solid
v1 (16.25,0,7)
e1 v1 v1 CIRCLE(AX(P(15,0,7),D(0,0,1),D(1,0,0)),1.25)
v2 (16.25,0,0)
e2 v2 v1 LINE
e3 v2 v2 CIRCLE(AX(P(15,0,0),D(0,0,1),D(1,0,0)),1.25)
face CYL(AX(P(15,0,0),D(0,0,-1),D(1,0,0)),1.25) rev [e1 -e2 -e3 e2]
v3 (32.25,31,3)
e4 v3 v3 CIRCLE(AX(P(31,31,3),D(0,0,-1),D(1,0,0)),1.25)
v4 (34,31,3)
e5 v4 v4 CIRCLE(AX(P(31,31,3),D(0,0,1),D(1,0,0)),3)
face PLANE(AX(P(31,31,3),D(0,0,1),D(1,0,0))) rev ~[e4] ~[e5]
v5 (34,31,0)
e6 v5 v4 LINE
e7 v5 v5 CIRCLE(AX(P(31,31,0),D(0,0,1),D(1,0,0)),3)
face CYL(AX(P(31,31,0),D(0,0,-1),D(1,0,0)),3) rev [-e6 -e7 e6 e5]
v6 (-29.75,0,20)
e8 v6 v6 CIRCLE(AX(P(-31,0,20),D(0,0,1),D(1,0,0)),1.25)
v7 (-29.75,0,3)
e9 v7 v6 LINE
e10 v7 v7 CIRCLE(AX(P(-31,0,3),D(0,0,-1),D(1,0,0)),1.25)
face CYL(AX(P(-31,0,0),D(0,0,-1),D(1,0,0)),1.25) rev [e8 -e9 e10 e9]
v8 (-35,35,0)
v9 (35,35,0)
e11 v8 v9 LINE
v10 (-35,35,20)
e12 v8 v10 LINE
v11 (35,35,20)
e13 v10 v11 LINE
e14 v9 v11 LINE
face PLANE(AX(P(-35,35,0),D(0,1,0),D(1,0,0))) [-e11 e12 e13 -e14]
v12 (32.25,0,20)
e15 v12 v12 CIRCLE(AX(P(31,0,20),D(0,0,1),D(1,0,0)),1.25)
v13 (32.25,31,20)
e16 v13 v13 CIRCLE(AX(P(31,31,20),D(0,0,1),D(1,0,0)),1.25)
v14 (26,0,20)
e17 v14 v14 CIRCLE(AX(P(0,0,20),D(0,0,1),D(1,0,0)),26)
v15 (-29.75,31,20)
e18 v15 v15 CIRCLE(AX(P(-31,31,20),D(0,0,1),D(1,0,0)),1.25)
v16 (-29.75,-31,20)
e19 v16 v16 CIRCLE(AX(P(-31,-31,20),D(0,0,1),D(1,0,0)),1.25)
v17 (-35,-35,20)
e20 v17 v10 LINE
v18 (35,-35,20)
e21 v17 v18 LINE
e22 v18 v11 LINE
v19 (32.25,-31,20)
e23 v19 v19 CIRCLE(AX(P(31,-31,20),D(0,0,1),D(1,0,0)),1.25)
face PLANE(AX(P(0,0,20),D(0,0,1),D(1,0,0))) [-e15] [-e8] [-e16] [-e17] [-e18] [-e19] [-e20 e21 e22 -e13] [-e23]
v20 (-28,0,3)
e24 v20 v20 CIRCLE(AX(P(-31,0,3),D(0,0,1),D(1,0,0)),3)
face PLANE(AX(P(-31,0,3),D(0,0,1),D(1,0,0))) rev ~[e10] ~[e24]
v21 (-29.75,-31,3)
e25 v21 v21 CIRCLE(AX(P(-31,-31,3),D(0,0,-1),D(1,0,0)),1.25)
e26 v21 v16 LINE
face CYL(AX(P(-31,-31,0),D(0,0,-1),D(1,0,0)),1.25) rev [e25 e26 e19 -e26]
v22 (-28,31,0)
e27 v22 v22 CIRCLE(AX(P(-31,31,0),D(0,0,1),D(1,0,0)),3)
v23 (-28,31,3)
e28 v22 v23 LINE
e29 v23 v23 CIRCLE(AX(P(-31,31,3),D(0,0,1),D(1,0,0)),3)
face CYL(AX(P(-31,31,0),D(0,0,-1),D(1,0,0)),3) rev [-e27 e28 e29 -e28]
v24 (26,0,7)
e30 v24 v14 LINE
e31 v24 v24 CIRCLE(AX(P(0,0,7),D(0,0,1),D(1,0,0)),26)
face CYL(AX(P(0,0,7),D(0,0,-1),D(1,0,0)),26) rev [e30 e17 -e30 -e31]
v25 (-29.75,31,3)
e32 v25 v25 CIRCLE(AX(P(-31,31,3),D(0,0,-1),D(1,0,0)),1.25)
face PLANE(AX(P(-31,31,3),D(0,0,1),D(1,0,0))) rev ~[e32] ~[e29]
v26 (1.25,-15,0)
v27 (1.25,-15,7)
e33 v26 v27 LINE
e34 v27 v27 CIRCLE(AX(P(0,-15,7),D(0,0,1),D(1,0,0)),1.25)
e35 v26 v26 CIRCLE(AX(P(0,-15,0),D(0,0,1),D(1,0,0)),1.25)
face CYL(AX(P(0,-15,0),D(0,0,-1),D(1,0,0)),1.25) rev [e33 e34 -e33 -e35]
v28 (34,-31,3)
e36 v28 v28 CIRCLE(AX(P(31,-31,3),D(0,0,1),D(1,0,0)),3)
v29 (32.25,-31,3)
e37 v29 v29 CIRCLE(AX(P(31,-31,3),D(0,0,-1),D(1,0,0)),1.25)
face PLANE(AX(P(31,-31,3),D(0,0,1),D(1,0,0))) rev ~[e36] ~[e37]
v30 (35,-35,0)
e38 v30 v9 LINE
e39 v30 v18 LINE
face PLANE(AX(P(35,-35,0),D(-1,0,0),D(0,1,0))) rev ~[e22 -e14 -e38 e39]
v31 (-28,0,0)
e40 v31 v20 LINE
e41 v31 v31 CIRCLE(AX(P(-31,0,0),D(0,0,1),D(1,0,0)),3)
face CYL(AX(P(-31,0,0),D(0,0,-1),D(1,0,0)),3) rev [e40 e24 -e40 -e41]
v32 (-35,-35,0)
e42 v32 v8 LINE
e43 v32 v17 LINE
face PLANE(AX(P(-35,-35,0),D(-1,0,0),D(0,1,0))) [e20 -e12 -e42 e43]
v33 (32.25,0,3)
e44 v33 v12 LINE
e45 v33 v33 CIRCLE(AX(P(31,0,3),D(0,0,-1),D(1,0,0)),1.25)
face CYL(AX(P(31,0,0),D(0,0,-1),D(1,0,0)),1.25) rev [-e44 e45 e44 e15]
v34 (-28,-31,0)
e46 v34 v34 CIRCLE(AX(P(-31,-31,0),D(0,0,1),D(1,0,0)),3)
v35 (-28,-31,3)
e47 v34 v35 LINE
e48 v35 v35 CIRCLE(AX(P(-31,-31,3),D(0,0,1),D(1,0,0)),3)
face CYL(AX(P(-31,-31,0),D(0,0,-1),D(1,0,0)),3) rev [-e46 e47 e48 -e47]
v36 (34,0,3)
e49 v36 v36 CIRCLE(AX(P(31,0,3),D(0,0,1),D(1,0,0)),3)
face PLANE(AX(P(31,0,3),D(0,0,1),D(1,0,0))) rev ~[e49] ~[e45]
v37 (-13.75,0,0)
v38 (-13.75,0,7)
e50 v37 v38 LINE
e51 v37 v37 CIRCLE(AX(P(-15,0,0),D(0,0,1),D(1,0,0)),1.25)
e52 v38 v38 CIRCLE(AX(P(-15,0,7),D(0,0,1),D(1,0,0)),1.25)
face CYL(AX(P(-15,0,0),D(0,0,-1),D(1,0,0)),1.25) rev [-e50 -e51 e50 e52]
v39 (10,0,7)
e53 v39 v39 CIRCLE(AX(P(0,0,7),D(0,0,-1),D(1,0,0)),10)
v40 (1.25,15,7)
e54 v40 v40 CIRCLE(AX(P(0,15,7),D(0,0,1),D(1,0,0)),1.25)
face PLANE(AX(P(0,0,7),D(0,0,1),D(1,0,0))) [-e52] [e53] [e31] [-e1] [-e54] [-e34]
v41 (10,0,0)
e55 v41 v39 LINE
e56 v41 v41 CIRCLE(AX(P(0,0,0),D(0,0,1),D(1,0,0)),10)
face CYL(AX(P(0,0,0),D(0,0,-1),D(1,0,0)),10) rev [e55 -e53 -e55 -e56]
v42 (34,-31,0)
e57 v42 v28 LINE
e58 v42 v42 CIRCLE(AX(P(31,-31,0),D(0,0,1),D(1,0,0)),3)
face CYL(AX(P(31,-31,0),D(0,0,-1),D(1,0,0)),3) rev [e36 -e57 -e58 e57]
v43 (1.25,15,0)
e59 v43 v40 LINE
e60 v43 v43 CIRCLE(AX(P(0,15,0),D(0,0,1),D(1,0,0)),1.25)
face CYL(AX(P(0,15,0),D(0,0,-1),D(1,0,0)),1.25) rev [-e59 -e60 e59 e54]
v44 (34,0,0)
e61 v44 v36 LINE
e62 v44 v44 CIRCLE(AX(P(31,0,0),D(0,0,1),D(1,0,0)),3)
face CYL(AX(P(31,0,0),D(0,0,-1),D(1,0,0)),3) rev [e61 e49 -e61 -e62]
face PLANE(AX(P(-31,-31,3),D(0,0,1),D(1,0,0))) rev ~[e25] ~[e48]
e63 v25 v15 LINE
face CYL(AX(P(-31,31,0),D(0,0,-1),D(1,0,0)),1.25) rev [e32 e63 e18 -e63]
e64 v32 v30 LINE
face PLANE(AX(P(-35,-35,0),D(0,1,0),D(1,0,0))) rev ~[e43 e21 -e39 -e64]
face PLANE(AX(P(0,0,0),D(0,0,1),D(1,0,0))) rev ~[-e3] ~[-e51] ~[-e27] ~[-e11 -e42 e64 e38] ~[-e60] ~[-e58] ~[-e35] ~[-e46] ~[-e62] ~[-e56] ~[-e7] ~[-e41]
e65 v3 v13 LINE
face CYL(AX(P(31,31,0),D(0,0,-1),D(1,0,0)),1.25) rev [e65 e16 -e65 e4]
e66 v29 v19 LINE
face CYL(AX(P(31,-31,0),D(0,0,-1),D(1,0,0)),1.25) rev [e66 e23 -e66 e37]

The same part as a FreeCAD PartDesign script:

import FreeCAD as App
import Part
import Sketcher
Q = App.Units.Quantity

doc = App.newDocument("Part")
body = doc.addObject("PartDesign::Body", "Body")

# Sketch on XY plane
sketch1 = doc.addObject("Sketcher::SketchObject", "Sketch")
body.addObject(sketch1)
sketch1.AttachmentSupport = (doc.XY_Plane, [""])
sketch1.MapMode = "FlatFace"
sketch1.addGeometry(Part.Circle(App.Vector(-31, 31, 0), App.Vector(0, 0, 1), 1.2), False)
sketch1.addConstraint(Sketcher.Constraint("Diameter", 0, Q("2.5 mm")))
sketch1.addConstraint(Sketcher.Constraint("DistanceX", 0, 3, -1, 1, Q("31 mm")))
sketch1.addConstraint(Sketcher.Constraint("DistanceY", -1, 1, 0, 3, Q("31 mm")))
pad1 = doc.addObject("PartDesign::Pad", "Pad")
body.addObject(pad1)
pad1.Profile = sketch1
pad1.Length = 20
body2 = doc.addObject("PartDesign::Body", "Body001")

# Sketch on XY plane
sketch2 = doc.addObject("Sketcher::SketchObject", "Sketch001")
body2.addObject(sketch2)
sketch2.AttachmentSupport = (doc.getObject("XY_Plane001"), [""])
sketch2.MapMode = "FlatFace"
sketch2.addGeometry(Part.Circle(App.Vector(-31, -31, 0), App.Vector(0, 0, 1), 1.2), False)
sketch2.addConstraint(Sketcher.Constraint("Diameter", 0, Q("2.5 mm")))
sketch2.addConstraint(Sketcher.Constraint("DistanceX", 0, 3, -1, 1, Q("31 mm")))
sketch2.addConstraint(Sketcher.Constraint("DistanceY", 0, 3, -1, 1, Q("31 mm")))
pad2 = doc.addObject("PartDesign::Pad", "Pad001")
body2.addObject(pad2)
pad2.Profile = sketch2
pad2.Length = 20
body3 = doc.addObject("PartDesign::Body", "Body002")

# Sketch on XY plane
sketch3 = doc.addObject("Sketcher::SketchObject", "Sketch002")
body3.addObject(sketch3)
sketch3.AttachmentSupport = (doc.getObject("XY_Plane002"), [""])
sketch3.MapMode = "FlatFace"
sketch3.addGeometry(Part.Circle(App.Vector(31, -31, 0), App.Vector(0, 0, 1), 1.2), False)
sketch3.addConstraint(Sketcher.Constraint("Diameter", 0, Q("2.5 mm")))
sketch3.addConstraint(Sketcher.Constraint("DistanceX", -1, 1, 0, 3, Q("31 mm")))
sketch3.addConstraint(Sketcher.Constraint("DistanceY", 0, 3, -1, 1, Q("31 mm")))
pad3 = doc.addObject("PartDesign::Pad", "Pad002")
body3.addObject(pad3)
pad3.Profile = sketch3
pad3.Length = 20
body4 = doc.addObject("PartDesign::Body", "Body003")

# Sketch on XY plane
sketch4 = doc.addObject("Sketcher::SketchObject", "Sketch003")
body4.addObject(sketch4)
sketch4.AttachmentSupport = (doc.getObject("XY_Plane003"), [""])
sketch4.MapMode = "FlatFace"
sketch4.addGeometry(Part.Circle(App.Vector(-31, 0, 0), App.Vector(0, 0, 1), 1.2), False)
sketch4.addConstraint(Sketcher.Constraint("PointOnObject", 0, 3, -1))
sketch4.addConstraint(Sketcher.Constraint("Diameter", 0, Q("2.5 mm")))
sketch4.addConstraint(Sketcher.Constraint("DistanceX", 0, 3, -1, 1, Q("31 mm")))
pad4 = doc.addObject("PartDesign::Pad", "Pad003")
body4.addObject(pad4)
pad4.Profile = sketch4
pad4.Length = 20
body5 = doc.addObject("PartDesign::Body", "Body004")

# Sketch on XY plane
sketch5 = doc.addObject("Sketcher::SketchObject", "Sketch004")
body5.addObject(sketch5)
sketch5.AttachmentSupport = (doc.getObject("XY_Plane004"), [""])
sketch5.MapMode = "FlatFace"
sketch5.addGeometry(Part.Circle(App.Vector(31, 0, 0), App.Vector(0, 0, 1), 1.2), False)
sketch5.addConstraint(Sketcher.Constraint("PointOnObject", 0, 3, -1))
sketch5.addConstraint(Sketcher.Constraint("Diameter", 0, Q("2.5 mm")))
sketch5.addConstraint(Sketcher.Constraint("DistanceX", -1, 1, 0, 3, Q("31 mm")))
pad5 = doc.addObject("PartDesign::Pad", "Pad004")
body5.addObject(pad5)
pad5.Profile = sketch5
pad5.Length = 20
body6 = doc.addObject("PartDesign::Body", "Body005")
body6.AllowCompound = True

# Sketch on XY plane
sketch6 = doc.addObject("Sketcher::SketchObject", "Sketch005")
body6.addObject(sketch6)
sketch6.AttachmentSupport = (doc.getObject("XY_Plane005"), [""])
sketch6.MapMode = "FlatFace"
sketch6.addGeometry(Part.Circle(App.Vector(31, 31, 0), App.Vector(0, 0, 1), 1.2), False)
sketch6.addConstraint(Sketcher.Constraint("Diameter", 0, Q("2.5 mm")))
sketch6.addConstraint(Sketcher.Constraint("DistanceX", -1, 1, 0, 3, Q("31 mm")))
sketch6.addConstraint(Sketcher.Constraint("DistanceY", -1, 1, 0, 3, Q("31 mm")))
pad6 = doc.addObject("PartDesign::Pad", "Pad005")
body6.addObject(pad6)
pad6.Profile = sketch6
pad6.Length = 20
doc.recompute()

boolean = doc.addObject("PartDesign::Boolean", "Boolean")
body6.addObject(boolean)
boolean.Type = "Fuse"
boolean.addObjects([body])
doc.recompute()

boolean2 = doc.addObject("PartDesign::Boolean", "Boolean001")
body6.addObject(boolean2)
boolean2.Type = "Fuse"
boolean2.addObjects([body2])
doc.recompute()

boolean3 = doc.addObject("PartDesign::Boolean", "Boolean002")
body6.addObject(boolean3)
boolean3.Type = "Fuse"
boolean3.addObjects([body3])
doc.recompute()

boolean4 = doc.addObject("PartDesign::Boolean", "Boolean003")
body6.addObject(boolean4)
boolean4.Type = "Fuse"
boolean4.addObjects([body4])
doc.recompute()

boolean5 = doc.addObject("PartDesign::Boolean", "Boolean004")
body6.addObject(boolean5)
boolean5.Type = "Fuse"
boolean5.addObjects([body5])
body7 = doc.addObject("PartDesign::Body", "Body006")

# Sketch on XY plane
sketch7 = doc.addObject("Sketcher::SketchObject", "Sketch006")
body7.addObject(sketch7)
sketch7.AttachmentSupport = (doc.getObject("XY_Plane006"), [""])
sketch7.MapMode = "FlatFace"
sketch7.addGeometry(Part.Circle(App.Vector(-31, 31, 0), App.Vector(0, 0, 1), 3), False)
sketch7.addConstraint(Sketcher.Constraint("Diameter", 0, Q("6 mm")))
sketch7.addConstraint(Sketcher.Constraint("DistanceX", 0, 3, -1, 1, Q("31 mm")))
sketch7.addConstraint(Sketcher.Constraint("DistanceY", -1, 1, 0, 3, Q("31 mm")))
pad7 = doc.addObject("PartDesign::Pad", "Pad006")
body7.addObject(pad7)
pad7.Profile = sketch7
pad7.Length = 3
body8 = doc.addObject("PartDesign::Body", "Body007")

# Sketch on XY plane
sketch8 = doc.addObject("Sketcher::SketchObject", "Sketch007")
body8.addObject(sketch8)
sketch8.AttachmentSupport = (doc.getObject("XY_Plane007"), [""])
sketch8.MapMode = "FlatFace"
sketch8.addGeometry(Part.Circle(App.Vector(-31, 0, 0), App.Vector(0, 0, 1), 3), False)
sketch8.addConstraint(Sketcher.Constraint("PointOnObject", 0, 3, -1))
sketch8.addConstraint(Sketcher.Constraint("Diameter", 0, Q("6 mm")))
sketch8.addConstraint(Sketcher.Constraint("DistanceX", 0, 3, -1, 1, Q("31 mm")))
pad8 = doc.addObject("PartDesign::Pad", "Pad007")
body8.addObject(pad8)
pad8.Profile = sketch8
pad8.Length = 3
body9 = doc.addObject("PartDesign::Body", "Body008")

# Sketch on XY plane
sketch9 = doc.addObject("Sketcher::SketchObject", "Sketch008")
body9.addObject(sketch9)
sketch9.AttachmentSupport = (doc.getObject("XY_Plane008"), [""])
sketch9.MapMode = "FlatFace"
sketch9.addGeometry(Part.Circle(App.Vector(-31, -31, 0), App.Vector(0, 0, 1), 3), False)
sketch9.addConstraint(Sketcher.Constraint("Diameter", 0, Q("6 mm")))
sketch9.addConstraint(Sketcher.Constraint("DistanceX", 0, 3, -1, 1, Q("31 mm")))
sketch9.addConstraint(Sketcher.Constraint("DistanceY", 0, 3, -1, 1, Q("31 mm")))
pad9 = doc.addObject("PartDesign::Pad", "Pad008")
body9.addObject(pad9)
pad9.Profile = sketch9
pad9.Length = 3
body10 = doc.addObject("PartDesign::Body", "Body009")

# Sketch on XY plane
sketch10 = doc.addObject("Sketcher::SketchObject", "Sketch009")
body10.addObject(sketch10)
sketch10.AttachmentSupport = (doc.getObject("XY_Plane009"), [""])
sketch10.MapMode = "FlatFace"
sketch10.addGeometry(Part.Circle(App.Vector(31, -31, 0), App.Vector(0, 0, 1), 3), False)
sketch10.addConstraint(Sketcher.Constraint("Diameter", 0, Q("6 mm")))
sketch10.addConstraint(Sketcher.Constraint("DistanceX", -1, 1, 0, 3, Q("31 mm")))
sketch10.addConstraint(Sketcher.Constraint("DistanceY", 0, 3, -1, 1, Q("31 mm")))
pad10 = doc.addObject("PartDesign::Pad", "Pad009")
body10.addObject(pad10)
pad10.Profile = sketch10
pad10.Length = 3
body11 = doc.addObject("PartDesign::Body", "Body010")

# Sketch on XY plane
sketch11 = doc.addObject("Sketcher::SketchObject", "Sketch010")
body11.addObject(sketch11)
sketch11.AttachmentSupport = (doc.getObject("XY_Plane010"), [""])
sketch11.MapMode = "FlatFace"
sketch11.addGeometry(Part.Circle(App.Vector(31, 0, 0), App.Vector(0, 0, 1), 3), False)
sketch11.addConstraint(Sketcher.Constraint("PointOnObject", 0, 3, -1))
sketch11.addConstraint(Sketcher.Constraint("Diameter", 0, Q("6 mm")))
sketch11.addConstraint(Sketcher.Constraint("DistanceX", -1, 1, 0, 3, Q("31 mm")))
pad11 = doc.addObject("PartDesign::Pad", "Pad010")
body11.addObject(pad11)
pad11.Profile = sketch11
pad11.Length = 3
body12 = doc.addObject("PartDesign::Body", "Body011")
body12.AllowCompound = True

# Sketch on XY plane
sketch12 = doc.addObject("Sketcher::SketchObject", "Sketch011")
body12.addObject(sketch12)
sketch12.AttachmentSupport = (doc.getObject("XY_Plane011"), [""])
sketch12.MapMode = "FlatFace"
sketch12.addGeometry(Part.Circle(App.Vector(31, 31, 0), App.Vector(0, 0, 1), 3), False)
sketch12.addConstraint(Sketcher.Constraint("Diameter", 0, Q("6 mm")))
sketch12.addConstraint(Sketcher.Constraint("DistanceX", -1, 1, 0, 3, Q("31 mm")))
sketch12.addConstraint(Sketcher.Constraint("DistanceY", -1, 1, 0, 3, Q("31 mm")))
pad12 = doc.addObject("PartDesign::Pad", "Pad011")
body12.addObject(pad12)
pad12.Profile = sketch12
pad12.Length = 3
doc.recompute()

boolean6 = doc.addObject("PartDesign::Boolean", "Boolean005")
body12.addObject(boolean6)
boolean6.Type = "Fuse"
boolean6.addObjects([body7])
doc.recompute()

boolean7 = doc.addObject("PartDesign::Boolean", "Boolean006")
body12.addObject(boolean7)
boolean7.Type = "Fuse"
boolean7.addObjects([body8])
doc.recompute()

boolean8 = doc.addObject("PartDesign::Boolean", "Boolean007")
body12.addObject(boolean8)
boolean8.Type = "Fuse"
boolean8.addObjects([body9])
doc.recompute()

boolean9 = doc.addObject("PartDesign::Boolean", "Boolean008")
body12.addObject(boolean9)
boolean9.Type = "Fuse"
boolean9.addObjects([body10])
doc.recompute()

boolean10 = doc.addObject("PartDesign::Boolean", "Boolean009")
body12.addObject(boolean10)
boolean10.Type = "Fuse"
boolean10.addObjects([body11])
doc.recompute()

boolean11 = doc.addObject("PartDesign::Boolean", "Boolean010")
body12.addObject(boolean11)
boolean11.Type = "Fuse"
boolean11.addObjects([body6])
body13 = doc.addObject("PartDesign::Body", "Body012")

# Sketch on XY plane
sketch13 = doc.addObject("Sketcher::SketchObject", "Sketch012")
body13.addObject(sketch13)
sketch13.AttachmentSupport = (doc.getObject("XY_Plane012"), [""])
sketch13.MapMode = "FlatFace"
sketch13.addGeometry(Part.Circle(App.Vector(-15, 0, 0), App.Vector(0, 0, 1), 1.2), False)
sketch13.addConstraint(Sketcher.Constraint("PointOnObject", 0, 3, -1))
sketch13.addConstraint(Sketcher.Constraint("Diameter", 0, Q("2.5 mm")))
sketch13.addConstraint(Sketcher.Constraint("DistanceX", 0, 3, -1, 1, Q("15 mm")))
pad13 = doc.addObject("PartDesign::Pad", "Pad012")
body13.addObject(pad13)
pad13.Profile = sketch13
pad13.Length = 7
body14 = doc.addObject("PartDesign::Body", "Body013")

# Sketch on XY plane
sketch14 = doc.addObject("Sketcher::SketchObject", "Sketch013")
body14.addObject(sketch14)
sketch14.AttachmentSupport = (doc.getObject("XY_Plane013"), [""])
sketch14.MapMode = "FlatFace"
sketch14.addGeometry(Part.Circle(App.Vector(0, -15, 0), App.Vector(0, 0, 1), 1.2), False)
sketch14.addConstraint(Sketcher.Constraint("PointOnObject", 0, 3, -2))
sketch14.addConstraint(Sketcher.Constraint("Diameter", 0, Q("2.5 mm")))
sketch14.addConstraint(Sketcher.Constraint("DistanceY", 0, 3, -1, 1, Q("15 mm")))
pad14 = doc.addObject("PartDesign::Pad", "Pad013")
body14.addObject(pad14)
pad14.Profile = sketch14
pad14.Length = 7
body15 = doc.addObject("PartDesign::Body", "Body014")

# Sketch on XY plane
sketch15 = doc.addObject("Sketcher::SketchObject", "Sketch014")
body15.addObject(sketch15)
sketch15.AttachmentSupport = (doc.getObject("XY_Plane014"), [""])
sketch15.MapMode = "FlatFace"
sketch15.addGeometry(Part.Circle(App.Vector(0, 15, 0), App.Vector(0, 0, 1), 1.2), False)
sketch15.addConstraint(Sketcher.Constraint("PointOnObject", 0, 3, -2))
sketch15.addConstraint(Sketcher.Constraint("Diameter", 0, Q("2.5 mm")))
sketch15.addConstraint(Sketcher.Constraint("DistanceY", -1, 1, 0, 3, Q("15 mm")))
pad15 = doc.addObject("PartDesign::Pad", "Pad014")
body15.addObject(pad15)
pad15.Profile = sketch15
pad15.Length = 7
body16 = doc.addObject("PartDesign::Body", "Body015")
body16.AllowCompound = True

# Sketch on XY plane
sketch16 = doc.addObject("Sketcher::SketchObject", "Sketch015")
body16.addObject(sketch16)
sketch16.AttachmentSupport = (doc.getObject("XY_Plane015"), [""])
sketch16.MapMode = "FlatFace"
sketch16.addGeometry(Part.Circle(App.Vector(15, 0, 0), App.Vector(0, 0, 1), 1.2), False)
sketch16.addConstraint(Sketcher.Constraint("PointOnObject", 0, 3, -1))
sketch16.addConstraint(Sketcher.Constraint("Diameter", 0, Q("2.5 mm")))
sketch16.addConstraint(Sketcher.Constraint("DistanceX", -1, 1, 0, 3, Q("15 mm")))
pad16 = doc.addObject("PartDesign::Pad", "Pad015")
body16.addObject(pad16)
pad16.Profile = sketch16
pad16.Length = 7
doc.recompute()

boolean12 = doc.addObject("PartDesign::Boolean", "Boolean011")
body16.addObject(boolean12)
boolean12.Type = "Fuse"
boolean12.addObjects([body13])
doc.recompute()

boolean13 = doc.addObject("PartDesign::Boolean", "Boolean012")
body16.addObject(boolean13)
boolean13.Type = "Fuse"
boolean13.addObjects([body14])
doc.recompute()

boolean14 = doc.addObject("PartDesign::Boolean", "Boolean013")
body16.addObject(boolean14)
boolean14.Type = "Fuse"
boolean14.addObjects([body15])
body17 = doc.addObject("PartDesign::Body", "Body016")

# Sketch on XY plane
sketch17 = doc.addObject("Sketcher::SketchObject", "Sketch016")
body17.addObject(sketch17)
sketch17.AttachmentSupport = (doc.getObject("XY_Plane016"), [""])
sketch17.MapMode = "FlatFace"
sketch17.AttachmentOffset = App.Placement(App.Vector(0, 0, 7), App.Rotation())
sketch17.addGeometry(Part.Circle(App.Vector(0, 0, 0), App.Vector(0, 0, 1), 26), False)
sketch17.addConstraint(Sketcher.Constraint("Coincident", 0, 3, -1, 1))
sketch17.addConstraint(Sketcher.Constraint("Diameter", 0, Q("52 mm")))
pad17 = doc.addObject("PartDesign::Pad", "Pad016")
body17.addObject(pad17)
pad17.Profile = sketch17
pad17.Length = 13
body18 = doc.addObject("PartDesign::Body", "Body017")

# Sketch on XY plane
sketch18 = doc.addObject("Sketcher::SketchObject", "Sketch017")
body18.addObject(sketch18)
sketch18.AttachmentSupport = (doc.getObject("XY_Plane017"), [""])
sketch18.MapMode = "FlatFace"
sketch18.addGeometry(Part.Circle(App.Vector(0, 0, 0), App.Vector(0, 0, 1), 10), False)
sketch18.addConstraint(Sketcher.Constraint("Coincident", 0, 3, -1, 1))
sketch18.addConstraint(Sketcher.Constraint("Diameter", 0, Q("20 mm")))
pad18 = doc.addObject("PartDesign::Pad", "Pad017")
body18.addObject(pad18)
pad18.Profile = sketch18
pad18.Length = 20
body19 = doc.addObject("PartDesign::Body", "Body018")

# Sketch on XY plane
sketch19 = doc.addObject("Sketcher::SketchObject", "Sketch018")
body19.addObject(sketch19)
sketch19.AttachmentSupport = (doc.getObject("XY_Plane018"), [""])
sketch19.MapMode = "FlatFace"
sketch19.addGeometry(Part.LineSegment(App.Vector(-35, 35, 0), App.Vector(-35, -35, 0)), False)
sketch19.addGeometry(Part.LineSegment(App.Vector(-35, -35, 0), App.Vector(35, -35, 0)), False)
sketch19.addGeometry(Part.LineSegment(App.Vector(35, -35, 0), App.Vector(35, 35, 0)), False)
sketch19.addGeometry(Part.LineSegment(App.Vector(35, 35, 0), App.Vector(-35, 35, 0)), False)
sketch19.addConstraint(Sketcher.Constraint("Coincident", 0, 2, 1, 1))
sketch19.addConstraint(Sketcher.Constraint("Coincident", 1, 2, 2, 1))
sketch19.addConstraint(Sketcher.Constraint("Coincident", 2, 2, 3, 1))
sketch19.addConstraint(Sketcher.Constraint("Coincident", 3, 2, 0, 1))
sketch19.addConstraint(Sketcher.Constraint("Vertical", 0))
sketch19.addConstraint(Sketcher.Constraint("Horizontal", 1))
sketch19.addConstraint(Sketcher.Constraint("Vertical", 2))
sketch19.addConstraint(Sketcher.Constraint("Horizontal", 3))
sketch19.addConstraint(Sketcher.Constraint("Symmetric", 0, 2, 2, 2, -1, 1))
sketch19.addConstraint(Sketcher.Constraint("Equal", 3, 0))
sketch19.addConstraint(Sketcher.Constraint("DistanceX", 1, 1, 1, 2, Q("70 mm")))
pad19 = doc.addObject("PartDesign::Pad", "Pad018")
body19.addObject(pad19)
pad19.Profile = sketch19
pad19.Length = 20
doc.recompute()

boolean15 = doc.addObject("PartDesign::Boolean", "Boolean014")
body19.addObject(boolean15)
boolean15.Type = "Cut"
boolean15.addObjects([body18])
doc.recompute()

boolean16 = doc.addObject("PartDesign::Boolean", "Boolean015")
body19.addObject(boolean16)
boolean16.Type = "Cut"
boolean16.addObjects([body17])
doc.recompute()

boolean17 = doc.addObject("PartDesign::Boolean", "Boolean016")
body19.addObject(boolean17)
boolean17.Type = "Cut"
boolean17.addObjects([body16])
doc.recompute()

boolean18 = doc.addObject("PartDesign::Boolean", "Boolean017")
body19.addObject(boolean18)
boolean18.Type = "Cut"
boolean18.addObjects([body12])

doc.recompute()
